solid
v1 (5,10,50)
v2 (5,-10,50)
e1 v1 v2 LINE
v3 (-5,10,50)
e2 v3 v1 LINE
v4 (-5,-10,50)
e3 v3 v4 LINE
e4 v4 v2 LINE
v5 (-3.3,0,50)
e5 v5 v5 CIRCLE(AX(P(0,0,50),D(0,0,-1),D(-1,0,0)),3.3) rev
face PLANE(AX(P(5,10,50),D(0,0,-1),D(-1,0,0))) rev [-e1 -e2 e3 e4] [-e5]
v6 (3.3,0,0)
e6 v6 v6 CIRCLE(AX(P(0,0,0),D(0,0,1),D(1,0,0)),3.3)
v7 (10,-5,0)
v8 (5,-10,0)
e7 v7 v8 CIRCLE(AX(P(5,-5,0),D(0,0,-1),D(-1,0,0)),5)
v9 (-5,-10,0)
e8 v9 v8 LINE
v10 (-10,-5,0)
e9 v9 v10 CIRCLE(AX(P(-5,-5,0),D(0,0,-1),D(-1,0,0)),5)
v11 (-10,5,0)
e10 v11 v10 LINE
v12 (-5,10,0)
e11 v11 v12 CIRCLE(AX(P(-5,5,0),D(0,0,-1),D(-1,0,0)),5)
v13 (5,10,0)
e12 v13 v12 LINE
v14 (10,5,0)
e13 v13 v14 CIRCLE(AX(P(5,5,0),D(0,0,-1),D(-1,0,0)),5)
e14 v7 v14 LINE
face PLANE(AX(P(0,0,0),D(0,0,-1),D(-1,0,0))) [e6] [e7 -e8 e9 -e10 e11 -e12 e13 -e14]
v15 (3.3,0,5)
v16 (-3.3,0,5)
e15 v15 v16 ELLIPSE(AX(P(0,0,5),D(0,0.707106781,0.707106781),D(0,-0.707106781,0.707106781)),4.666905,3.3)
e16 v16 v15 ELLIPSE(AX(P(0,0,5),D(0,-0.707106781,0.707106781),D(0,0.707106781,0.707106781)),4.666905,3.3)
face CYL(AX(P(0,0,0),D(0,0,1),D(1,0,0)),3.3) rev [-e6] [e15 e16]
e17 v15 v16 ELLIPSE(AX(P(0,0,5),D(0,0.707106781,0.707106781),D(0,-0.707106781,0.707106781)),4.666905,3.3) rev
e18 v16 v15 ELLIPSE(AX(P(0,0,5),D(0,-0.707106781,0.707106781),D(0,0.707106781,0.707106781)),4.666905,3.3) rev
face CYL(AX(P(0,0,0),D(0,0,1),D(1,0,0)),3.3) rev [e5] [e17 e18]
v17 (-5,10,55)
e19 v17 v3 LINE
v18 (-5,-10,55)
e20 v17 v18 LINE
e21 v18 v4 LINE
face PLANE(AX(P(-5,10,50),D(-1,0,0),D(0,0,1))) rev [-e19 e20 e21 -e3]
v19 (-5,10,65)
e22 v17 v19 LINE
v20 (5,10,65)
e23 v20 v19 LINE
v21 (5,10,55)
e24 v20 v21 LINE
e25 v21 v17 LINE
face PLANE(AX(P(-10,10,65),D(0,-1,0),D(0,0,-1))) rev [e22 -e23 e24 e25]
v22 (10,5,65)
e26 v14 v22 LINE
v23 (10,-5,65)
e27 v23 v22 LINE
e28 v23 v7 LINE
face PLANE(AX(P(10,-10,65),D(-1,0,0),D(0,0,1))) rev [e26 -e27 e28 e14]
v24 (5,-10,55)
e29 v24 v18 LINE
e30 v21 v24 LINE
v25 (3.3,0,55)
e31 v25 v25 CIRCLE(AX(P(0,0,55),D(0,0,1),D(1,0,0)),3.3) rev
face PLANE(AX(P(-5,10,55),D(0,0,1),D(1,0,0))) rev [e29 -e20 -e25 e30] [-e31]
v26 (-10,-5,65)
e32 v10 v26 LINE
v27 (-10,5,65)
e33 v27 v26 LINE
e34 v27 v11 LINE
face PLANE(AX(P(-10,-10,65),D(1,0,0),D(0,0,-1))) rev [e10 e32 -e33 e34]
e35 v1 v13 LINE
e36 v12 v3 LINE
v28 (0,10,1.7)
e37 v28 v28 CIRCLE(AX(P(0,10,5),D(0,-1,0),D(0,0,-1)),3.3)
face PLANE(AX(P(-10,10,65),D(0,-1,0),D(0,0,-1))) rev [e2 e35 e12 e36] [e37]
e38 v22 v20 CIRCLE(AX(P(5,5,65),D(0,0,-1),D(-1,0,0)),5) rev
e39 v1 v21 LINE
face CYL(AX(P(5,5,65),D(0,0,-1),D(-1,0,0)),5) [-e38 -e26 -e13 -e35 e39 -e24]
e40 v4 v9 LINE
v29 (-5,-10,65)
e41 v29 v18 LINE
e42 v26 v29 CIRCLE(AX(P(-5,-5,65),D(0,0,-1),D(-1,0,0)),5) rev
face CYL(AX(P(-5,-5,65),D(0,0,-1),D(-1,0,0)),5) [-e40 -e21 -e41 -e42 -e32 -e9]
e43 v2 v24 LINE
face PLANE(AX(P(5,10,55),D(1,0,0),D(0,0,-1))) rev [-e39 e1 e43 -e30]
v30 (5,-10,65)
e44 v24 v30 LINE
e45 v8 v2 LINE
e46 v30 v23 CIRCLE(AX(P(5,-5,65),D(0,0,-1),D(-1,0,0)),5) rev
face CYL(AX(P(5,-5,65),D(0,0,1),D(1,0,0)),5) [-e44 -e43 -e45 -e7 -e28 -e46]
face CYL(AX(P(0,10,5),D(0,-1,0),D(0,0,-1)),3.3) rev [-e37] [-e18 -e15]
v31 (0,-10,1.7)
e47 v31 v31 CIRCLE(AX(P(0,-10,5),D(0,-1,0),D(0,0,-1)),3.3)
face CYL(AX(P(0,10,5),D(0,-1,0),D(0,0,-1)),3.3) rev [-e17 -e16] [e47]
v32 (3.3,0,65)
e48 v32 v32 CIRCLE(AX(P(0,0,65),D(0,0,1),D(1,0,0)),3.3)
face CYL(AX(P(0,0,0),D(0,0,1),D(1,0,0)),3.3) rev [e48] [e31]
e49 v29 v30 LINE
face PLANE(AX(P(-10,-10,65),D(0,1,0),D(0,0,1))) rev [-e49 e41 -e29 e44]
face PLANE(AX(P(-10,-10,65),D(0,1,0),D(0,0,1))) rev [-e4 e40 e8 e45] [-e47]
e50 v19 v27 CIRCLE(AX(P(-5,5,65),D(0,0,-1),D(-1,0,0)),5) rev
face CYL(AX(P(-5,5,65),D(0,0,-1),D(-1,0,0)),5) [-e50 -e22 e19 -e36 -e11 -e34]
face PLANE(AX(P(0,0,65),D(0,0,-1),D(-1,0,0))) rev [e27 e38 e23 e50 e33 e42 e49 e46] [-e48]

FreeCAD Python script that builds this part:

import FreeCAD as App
import Part
import Sketcher
Q = App.Units.Quantity


def edges_at(feature, points):
    """Names of the edges that pass closest to the given points."""
    edges = feature.Shape.Edges
    near = lambda p: min(range(len(edges)), key=lambda i: edges[i].distToShape(Part.Vertex(*p))[0])
    return sorted({f"Edge{near(p) + 1}" for p in points})

doc = App.newDocument("Part")
body = doc.addObject("PartDesign::Body", "Body")

# Sketch on XY plane
sketch1 = doc.addObject("Sketcher::SketchObject", "Sketch")
body.addObject(sketch1)
sketch1.AttachmentSupport = (doc.XY_Plane, [""])
sketch1.MapMode = "FlatFace"
sketch1.addGeometry([
    Part.LineSegment(App.Vector(-10, 10, 0), App.Vector(-10, -10, 0)),
    Part.LineSegment(App.Vector(-10, -10, 0), App.Vector(10, -10, 0)),
    Part.LineSegment(App.Vector(10, -10, 0), App.Vector(10, 10, 0)),
    Part.LineSegment(App.Vector(10, 10, 0), App.Vector(-10, 10, 0)),
], False)
sketch1.addConstraint([
    Sketcher.Constraint("Coincident", 0, 2, 1, 1),
    Sketcher.Constraint("Coincident", 1, 2, 2, 1),
    Sketcher.Constraint("Coincident", 2, 2, 3, 1),
    Sketcher.Constraint("Coincident", 3, 2, 0, 1),
    Sketcher.Constraint("Vertical", 0),
    Sketcher.Constraint("Horizontal", 1),
    Sketcher.Constraint("Vertical", 2),
    Sketcher.Constraint("Horizontal", 3),
    Sketcher.Constraint("Symmetric", 0, 2, 2, 2, -1, 1),
    Sketcher.Constraint("Equal", 3, 0),
    Sketcher.Constraint("DistanceX", 1, 1, 1, 2, Q("20 mm")),
])
pad1 = doc.addObject("PartDesign::Pad", "Pad")
body.addObject(pad1)
pad1.Profile = sketch1
pad1.Length = 65

# Sketch on XY plane
sketch2 = doc.addObject("Sketcher::SketchObject", "Sketch001")
body.addObject(sketch2)
sketch2.AttachmentSupport = (doc.XY_Plane, [""])
sketch2.MapMode = "FlatFace"
sketch2.AttachmentOffset = App.Placement(App.Vector(0, 0, 65), App.Rotation())
sketch2.addGeometry(Part.Circle(App.Vector(0, 0, 0), App.Vector(0, 0, 1), 3.3), False)
sketch2.addConstraint([
    Sketcher.Constraint("Coincident", 0, 3, -1, 1),
    Sketcher.Constraint("Diameter", 0, Q("6.6 mm")),
])
pocket1 = doc.addObject("PartDesign::Pocket", "Pocket")
body.addObject(pocket1)
pocket1.Profile = sketch2
pocket1.Type = "ThroughAll"

# Sketch on XZ plane
sketch3 = doc.addObject("Sketcher::SketchObject", "Sketch002")
body.addObject(sketch3)
sketch3.AttachmentSupport = (doc.XZ_Plane, [""])
sketch3.MapMode = "FlatFace"
sketch3.AttachmentOffset = App.Placement(App.Vector(0, 0, 10), App.Rotation())
sketch3.addGeometry(Part.Circle(App.Vector(0, 5, 0), App.Vector(0, 0, 1), 3.3), False)
sketch3.addConstraint([
    Sketcher.Constraint("PointOnObject", 0, 3, -2),
    Sketcher.Constraint("Diameter", 0, Q("6.6 mm")),
    Sketcher.Constraint("DistanceY", -1, 1, 0, 3, Q("5 mm")),
])
pocket2 = doc.addObject("PartDesign::Pocket", "Pocket001")
body.addObject(pocket2)
pocket2.Profile = sketch3
pocket2.Type = "ThroughAll"
doc.recompute()

fillet = doc.addObject("PartDesign::Fillet", "Fillet")
body.addObject(fillet)
fillet.Base = (pocket2, edges_at(pocket2, [(10, -10, 32.5)]))
fillet.Radius = 5
doc.recompute()

fillet2 = doc.addObject("PartDesign::Fillet", "Fillet001")
body.addObject(fillet2)
fillet2.Base = (fillet, edges_at(fillet, [(10, 10, 32.5)]))
fillet2.Radius = 5
doc.recompute()

fillet3 = doc.addObject("PartDesign::Fillet", "Fillet002")
body.addObject(fillet3)
fillet3.Base = (fillet2, edges_at(fillet2, [(-10, 10, 32.5)]))
fillet3.Radius = 5
doc.recompute()

fillet4 = doc.addObject("PartDesign::Fillet", "Fillet003")
body.addObject(fillet4)
fillet4.Base = (fillet3, edges_at(fillet3, [(-10, -10, 32.5)]))
fillet4.Radius = 5

# Sketch on XZ plane
sketch4 = doc.addObject("Sketcher::SketchObject", "Sketch003")
body.addObject(sketch4)
sketch4.AttachmentSupport = (doc.XZ_Plane, [""])
sketch4.MapMode = "FlatFace"
sketch4.AttachmentOffset = App.Placement(App.Vector(0, 0, 10), App.Rotation())
sketch4.addGeometry([
    Part.LineSegment(App.Vector(5, 50, 0), App.Vector(5, 55, 0)),
    Part.LineSegment(App.Vector(5, 55, 0), App.Vector(-5, 55, 0)),
    Part.LineSegment(App.Vector(-5, 55, 0), App.Vector(-5, 50, 0)),
    Part.LineSegment(App.Vector(-5, 50, 0), App.Vector(5, 50, 0)),
], False)
sketch4.addConstraint([
    Sketcher.Constraint("Coincident", 0, 2, 1, 1),
    Sketcher.Constraint("Coincident", 1, 2, 2, 1),
    Sketcher.Constraint("Coincident", 2, 2, 3, 1),
    Sketcher.Constraint("Coincident", 3, 2, 0, 1),
    Sketcher.Constraint("Vertical", 0),
    Sketcher.Constraint("Horizontal", 1),
    Sketcher.Constraint("Vertical", 2),
    Sketcher.Constraint("Horizontal", 3),
    Sketcher.Constraint("DistanceX", 1, 2, 1, 1, Q("10 mm")),
    Sketcher.Constraint("DistanceY", 0, 1, 0, 2, Q("5 mm")),
    Sketcher.Constraint("DistanceX", -1, 1, 0, 2, Q("5 mm")),
    Sketcher.Constraint("DistanceY", -1, 1, 0, 2, Q("55 mm")),
])
pocket3 = doc.addObject("PartDesign::Pocket", "Pocket002")
body.addObject(pocket3)
pocket3.Profile = sketch4
pocket3.Type = "ThroughAll"

doc.recompute()
